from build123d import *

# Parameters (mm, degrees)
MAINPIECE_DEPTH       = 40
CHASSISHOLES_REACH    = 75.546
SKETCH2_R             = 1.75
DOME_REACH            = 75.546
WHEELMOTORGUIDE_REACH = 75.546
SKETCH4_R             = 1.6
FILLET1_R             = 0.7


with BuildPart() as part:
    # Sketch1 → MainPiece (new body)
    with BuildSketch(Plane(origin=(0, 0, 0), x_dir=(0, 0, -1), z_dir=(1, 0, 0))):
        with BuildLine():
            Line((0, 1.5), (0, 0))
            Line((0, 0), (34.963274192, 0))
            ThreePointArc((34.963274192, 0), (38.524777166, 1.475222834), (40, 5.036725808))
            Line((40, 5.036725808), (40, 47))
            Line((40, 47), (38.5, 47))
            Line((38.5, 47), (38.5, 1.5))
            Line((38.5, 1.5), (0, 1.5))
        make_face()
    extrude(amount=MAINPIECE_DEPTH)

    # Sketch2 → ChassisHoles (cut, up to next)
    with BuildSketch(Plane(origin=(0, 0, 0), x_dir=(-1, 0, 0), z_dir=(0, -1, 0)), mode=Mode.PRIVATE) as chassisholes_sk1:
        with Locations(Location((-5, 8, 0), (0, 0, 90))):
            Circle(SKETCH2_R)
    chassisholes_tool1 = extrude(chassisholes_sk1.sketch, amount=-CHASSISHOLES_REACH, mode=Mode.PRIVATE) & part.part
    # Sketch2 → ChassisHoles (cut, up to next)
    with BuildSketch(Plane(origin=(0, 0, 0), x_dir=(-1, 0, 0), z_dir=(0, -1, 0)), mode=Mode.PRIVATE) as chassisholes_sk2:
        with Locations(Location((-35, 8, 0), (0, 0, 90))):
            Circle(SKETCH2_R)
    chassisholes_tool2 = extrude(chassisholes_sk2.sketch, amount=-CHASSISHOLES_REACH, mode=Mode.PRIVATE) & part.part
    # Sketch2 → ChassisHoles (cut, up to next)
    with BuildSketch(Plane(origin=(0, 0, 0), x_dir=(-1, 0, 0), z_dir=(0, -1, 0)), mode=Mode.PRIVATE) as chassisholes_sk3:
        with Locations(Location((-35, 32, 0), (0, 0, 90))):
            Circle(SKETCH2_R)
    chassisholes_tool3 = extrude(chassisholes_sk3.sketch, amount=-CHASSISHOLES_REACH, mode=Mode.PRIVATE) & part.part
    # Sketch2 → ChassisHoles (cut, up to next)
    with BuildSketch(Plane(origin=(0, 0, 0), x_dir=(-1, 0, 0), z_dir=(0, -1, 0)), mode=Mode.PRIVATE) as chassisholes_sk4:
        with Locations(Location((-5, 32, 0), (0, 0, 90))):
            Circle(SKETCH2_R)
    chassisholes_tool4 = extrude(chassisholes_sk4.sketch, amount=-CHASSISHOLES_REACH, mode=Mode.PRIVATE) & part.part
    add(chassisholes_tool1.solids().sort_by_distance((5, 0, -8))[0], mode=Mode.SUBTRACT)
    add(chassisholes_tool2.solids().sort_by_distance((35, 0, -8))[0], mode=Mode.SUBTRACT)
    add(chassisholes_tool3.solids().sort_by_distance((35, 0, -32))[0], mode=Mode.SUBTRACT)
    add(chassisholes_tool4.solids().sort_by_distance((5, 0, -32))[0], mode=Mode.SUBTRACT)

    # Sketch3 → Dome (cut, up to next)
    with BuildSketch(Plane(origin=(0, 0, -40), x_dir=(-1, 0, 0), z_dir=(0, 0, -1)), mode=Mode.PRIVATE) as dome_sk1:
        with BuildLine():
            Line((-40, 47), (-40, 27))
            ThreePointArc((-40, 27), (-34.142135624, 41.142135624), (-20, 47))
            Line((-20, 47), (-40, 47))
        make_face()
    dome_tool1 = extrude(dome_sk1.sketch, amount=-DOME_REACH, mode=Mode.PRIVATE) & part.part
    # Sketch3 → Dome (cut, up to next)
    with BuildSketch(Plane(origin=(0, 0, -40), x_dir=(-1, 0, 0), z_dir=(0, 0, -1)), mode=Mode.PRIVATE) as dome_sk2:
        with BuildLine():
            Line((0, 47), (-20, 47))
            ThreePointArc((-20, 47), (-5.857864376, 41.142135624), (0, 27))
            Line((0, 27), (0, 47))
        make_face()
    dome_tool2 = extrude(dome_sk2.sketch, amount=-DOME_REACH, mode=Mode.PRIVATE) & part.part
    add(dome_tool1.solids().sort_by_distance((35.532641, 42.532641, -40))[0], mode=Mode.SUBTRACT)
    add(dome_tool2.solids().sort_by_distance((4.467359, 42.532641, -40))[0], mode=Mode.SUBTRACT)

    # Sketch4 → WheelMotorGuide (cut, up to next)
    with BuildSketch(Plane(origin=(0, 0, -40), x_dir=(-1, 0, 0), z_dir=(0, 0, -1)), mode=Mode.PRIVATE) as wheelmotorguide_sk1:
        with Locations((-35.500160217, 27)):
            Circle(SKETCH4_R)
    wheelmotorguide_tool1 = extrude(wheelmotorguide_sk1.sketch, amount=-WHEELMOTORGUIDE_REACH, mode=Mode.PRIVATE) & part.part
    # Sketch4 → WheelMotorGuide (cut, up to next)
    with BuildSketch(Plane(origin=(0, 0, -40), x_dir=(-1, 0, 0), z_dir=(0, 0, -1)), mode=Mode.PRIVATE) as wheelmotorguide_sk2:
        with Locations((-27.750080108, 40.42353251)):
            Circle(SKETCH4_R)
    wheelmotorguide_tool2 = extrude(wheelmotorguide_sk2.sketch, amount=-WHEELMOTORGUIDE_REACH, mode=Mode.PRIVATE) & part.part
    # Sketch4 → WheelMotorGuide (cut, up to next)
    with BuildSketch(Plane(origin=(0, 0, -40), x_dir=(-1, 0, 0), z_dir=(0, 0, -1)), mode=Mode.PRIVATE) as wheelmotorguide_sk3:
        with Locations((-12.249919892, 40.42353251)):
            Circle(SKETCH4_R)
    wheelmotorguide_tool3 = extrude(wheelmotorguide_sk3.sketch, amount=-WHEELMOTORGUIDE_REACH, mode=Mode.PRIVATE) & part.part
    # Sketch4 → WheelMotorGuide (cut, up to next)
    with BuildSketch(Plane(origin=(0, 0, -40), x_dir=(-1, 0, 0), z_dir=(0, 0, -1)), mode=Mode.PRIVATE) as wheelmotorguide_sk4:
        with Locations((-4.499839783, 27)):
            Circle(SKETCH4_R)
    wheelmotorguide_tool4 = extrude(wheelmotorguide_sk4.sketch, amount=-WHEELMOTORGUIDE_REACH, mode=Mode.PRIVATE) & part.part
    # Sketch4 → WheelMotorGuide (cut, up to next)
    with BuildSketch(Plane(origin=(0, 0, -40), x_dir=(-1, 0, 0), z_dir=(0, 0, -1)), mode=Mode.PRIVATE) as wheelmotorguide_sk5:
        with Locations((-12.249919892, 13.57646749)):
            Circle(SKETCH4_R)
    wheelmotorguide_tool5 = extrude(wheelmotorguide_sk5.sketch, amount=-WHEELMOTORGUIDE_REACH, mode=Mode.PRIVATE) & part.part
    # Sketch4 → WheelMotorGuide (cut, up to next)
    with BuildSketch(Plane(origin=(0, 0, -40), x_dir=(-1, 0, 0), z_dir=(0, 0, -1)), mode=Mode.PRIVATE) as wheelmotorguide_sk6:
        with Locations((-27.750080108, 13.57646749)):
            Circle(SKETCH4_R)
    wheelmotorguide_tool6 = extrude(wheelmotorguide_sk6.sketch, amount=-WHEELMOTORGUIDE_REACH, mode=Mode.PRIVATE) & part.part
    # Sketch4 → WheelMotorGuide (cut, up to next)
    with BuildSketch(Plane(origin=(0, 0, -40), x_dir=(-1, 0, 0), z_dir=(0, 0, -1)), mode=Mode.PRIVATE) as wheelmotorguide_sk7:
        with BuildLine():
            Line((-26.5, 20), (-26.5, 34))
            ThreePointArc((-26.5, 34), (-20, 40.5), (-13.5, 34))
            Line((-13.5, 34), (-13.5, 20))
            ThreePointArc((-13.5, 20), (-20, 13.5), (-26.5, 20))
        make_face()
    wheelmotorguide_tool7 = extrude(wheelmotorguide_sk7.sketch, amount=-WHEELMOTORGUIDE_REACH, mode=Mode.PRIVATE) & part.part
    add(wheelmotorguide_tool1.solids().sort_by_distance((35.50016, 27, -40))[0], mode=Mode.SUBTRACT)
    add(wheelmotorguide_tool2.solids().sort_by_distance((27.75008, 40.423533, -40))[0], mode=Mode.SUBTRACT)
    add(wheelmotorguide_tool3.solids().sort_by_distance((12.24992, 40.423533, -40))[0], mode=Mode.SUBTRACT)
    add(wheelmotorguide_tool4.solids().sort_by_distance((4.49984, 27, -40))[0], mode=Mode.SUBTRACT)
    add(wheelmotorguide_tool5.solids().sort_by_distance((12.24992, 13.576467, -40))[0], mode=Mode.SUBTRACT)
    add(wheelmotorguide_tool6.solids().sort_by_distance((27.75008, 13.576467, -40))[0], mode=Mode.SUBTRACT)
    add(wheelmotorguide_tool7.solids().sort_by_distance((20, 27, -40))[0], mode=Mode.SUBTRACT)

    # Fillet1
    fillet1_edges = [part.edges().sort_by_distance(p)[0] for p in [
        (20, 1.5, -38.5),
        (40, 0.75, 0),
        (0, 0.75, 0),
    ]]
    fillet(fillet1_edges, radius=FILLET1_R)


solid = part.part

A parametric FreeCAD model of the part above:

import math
import FreeCAD as App
import Part
import Sketcher
from FreeCAD import Vector


def edges_at(feature, points):
    """Names of the edges that pass closest to the given points."""
    edges = feature.Shape.Edges
    near = lambda p: min(range(len(edges)), key=lambda i: edges[i].distToShape(Part.Vertex(*p))[0])
    return sorted({f"Edge{near(p) + 1}" for p in points})

doc = App.newDocument("Part")
params = doc.addObject("Spreadsheet::Sheet", "Params")
for row, (alias, value) in enumerate([
    ("sketch1_width", "1.5 mm"),
    ("sketch1_width2", "45.5 mm"),
    ("sketch1_height", "38.5 mm"),
    ("pad1_length", "40 mm"),
    ("sketch2_diameter", "3.5 mm"),
    ("sketch3_diameter", "3.5 mm"),
    ("sketch4_diameter", "3.5 mm"),
    ("sketch5_diameter", "3.5 mm"),
    ("sketch6_radius", "20 mm"),
    ("sketch7_radius", "20 mm"),
    ("sketch8_diameter", "3.2 mm"),
    ("sketch9_diameter", "3.2 mm"),
    ("sketch10_diameter", "3.2 mm"),
    ("sketch11_diameter", "3.2 mm"),
    ("sketch12_diameter", "3.2 mm"),
    ("sketch13_diameter", "3.2 mm"),
    ("sketch14_radius", "6.5 mm"),
    ("sketch14_height", "14 mm"),
    ("fillet_radius", "0.7 mm"),
], start=1):
    params.set(f"A{row}", alias)
    params.set(f"B{row}", "=" + value)
    params.setAlias(f"B{row}", alias)

body = doc.addObject("PartDesign::Body", "Body")

# Sketch on YZ plane
sketch1 = body.newObject("Sketcher::SketchObject", "Sketch")
sketch1.AttachmentSupport = (doc.getObject("YZ_Plane"), [""])
sketch1.MapMode = "FlatFace"
sketch1.addGeometry([
    Part.LineSegment(Vector(1.5, 0, 0), Vector(0, 0, 0)),  # 0
    Part.LineSegment(Vector(0, 0, 0), Vector(0, -34.963274, 0)),  # 1
    Part.ArcOfCircle(Part.Circle(Vector(5.036726, -34.963274, 0), Vector(0, 0, 1), 5.036726), math.radians(180), math.radians(270)),  # 2
    Part.LineSegment(Vector(5.036726, -40, 0), Vector(47, -40, 0)),  # 3
    Part.LineSegment(Vector(47, -40, 0), Vector(47, -38.5, 0)),  # 4
    Part.LineSegment(Vector(47, -38.5, 0), Vector(1.5, -38.5, 0)),  # 5
    Part.LineSegment(Vector(1.5, -38.5, 0), Vector(1.5, 0, 0)),  # 6
], False)
sketch1.addConstraint([
    Sketcher.Constraint("Coincident", 0, 2, 1, 1),
    Sketcher.Constraint("Tangent", 1, 2, 2, 1),
    Sketcher.Constraint("Tangent", 2, 2, 3, 1),
    Sketcher.Constraint("Coincident", 3, 2, 4, 1),
    Sketcher.Constraint("Coincident", 4, 2, 5, 1),
    Sketcher.Constraint("Coincident", 5, 2, 6, 1),
    Sketcher.Constraint("Coincident", 6, 2, 0, 1),
    Sketcher.Constraint("Horizontal", 0),
    Sketcher.Constraint("Vertical", 1),
    Sketcher.Constraint("Horizontal", 3),
    Sketcher.Constraint("Vertical", 4),
    Sketcher.Constraint("Horizontal", 5),
    Sketcher.Constraint("Vertical", 6),
    Sketcher.Constraint("Coincident", 0, 2, -1, 1),
    Sketcher.Constraint("Equal", 0, 4),
    Sketcher.Constraint("DistanceX", 0, 2, 0, 1, 1.5),
    Sketcher.Constraint("DistanceX", 5, 2, 5, 1, 45.5),
    Sketcher.Constraint("DistanceY", 6, 1, 6, 2, 38.5),
    Sketcher.Constraint("Radius", 2, 5.036726),
])
sketch1.setExpression("Constraints[15]", "Params.sketch1_width")
sketch1.setExpression("Constraints[16]", "Params.sketch1_width2")
sketch1.setExpression("Constraints[17]", "Params.sketch1_height")
pad1 = body.newObject("PartDesign::Pad", "Pad")
pad1.Profile = sketch1
pad1.setExpression("Length", "Params.pad1_length")

# Sketch on XZ plane
sketch2 = body.newObject("Sketcher::SketchObject", "Sketch001")
sketch2.AttachmentSupport = (doc.getObject("XZ_Plane"), [""])
sketch2.MapMode = "FlatFace"
sketch2.addGeometry(Part.Circle(Vector(5, -8, 0), Vector(0, 0, 1), 1.75), False)
sketch2.addConstraint([
    Sketcher.Constraint("Diameter", 0, 3.5),
    Sketcher.Constraint("DistanceX", -1, 1, 0, 3, 5.0),
    Sketcher.Constraint("DistanceY", 0, 3, -1, 1, 8.0),
])
sketch2.setExpression("Constraints[0]", "Params.sketch2_diameter")
pocket1 = body.newObject("PartDesign::Pocket", "Pocket")
pocket1.Profile = sketch2
pocket1.Type = "UpToFirst"

# Sketch on XZ plane
sketch3 = body.newObject("Sketcher::SketchObject", "Sketch002")
sketch3.AttachmentSupport = (doc.getObject("XZ_Plane"), [""])
sketch3.MapMode = "FlatFace"
sketch3.addGeometry(Part.Circle(Vector(35, -8, 0), Vector(0, 0, 1), 1.75), False)
sketch3.addConstraint([
    Sketcher.Constraint("Diameter", 0, 3.5),
    Sketcher.Constraint("DistanceX", -1, 1, 0, 3, 35.0),
    Sketcher.Constraint("DistanceY", 0, 3, -1, 1, 8.0),
])
sketch3.setExpression("Constraints[0]", "Params.sketch3_diameter")
pocket2 = body.newObject("PartDesign::Pocket", "Pocket001")
pocket2.Profile = sketch3
pocket2.Type = "UpToFirst"

# Sketch on XZ plane
sketch4 = body.newObject("Sketcher::SketchObject", "Sketch003")
sketch4.AttachmentSupport = (doc.getObject("XZ_Plane"), [""])
sketch4.MapMode = "FlatFace"
sketch4.addGeometry(Part.Circle(Vector(35, -32, 0), Vector(0, 0, 1), 1.75), False)
sketch4.addConstraint([
    Sketcher.Constraint("Diameter", 0, 3.5),
    Sketcher.Constraint("DistanceX", -1, 1, 0, 3, 35.0),
    Sketcher.Constraint("DistanceY", 0, 3, -1, 1, 32.0),
])
sketch4.setExpression("Constraints[0]", "Params.sketch4_diameter")
pocket3 = body.newObject("PartDesign::Pocket", "Pocket002")
pocket3.Profile = sketch4
pocket3.Type = "UpToFirst"

# Sketch on XZ plane
sketch5 = body.newObject("Sketcher::SketchObject", "Sketch004")
sketch5.AttachmentSupport = (doc.getObject("XZ_Plane"), [""])
sketch5.MapMode = "FlatFace"
sketch5.addGeometry(Part.Circle(Vector(5, -32, 0), Vector(0, 0, 1), 1.75), False)
sketch5.addConstraint([
    Sketcher.Constraint("Diameter", 0, 3.5),
    Sketcher.Constraint("DistanceX", -1, 1, 0, 3, 5.0),
    Sketcher.Constraint("DistanceY", 0, 3, -1, 1, 32.0),
])
sketch5.setExpression("Constraints[0]", "Params.sketch5_diameter")
pocket4 = body.newObject("PartDesign::Pocket", "Pocket003")
pocket4.Profile = sketch5
pocket4.Type = "UpToFirst"

# Sketch on XY plane
sketch6 = body.newObject("Sketcher::SketchObject", "Sketch005")
sketch6.AttachmentSupport = (doc.getObject("XY_Plane"), [""])
sketch6.MapMode = "FlatFace"
sketch6.AttachmentOffset = App.Placement(Vector(0, 0, -40), App.Rotation())
sketch6.addGeometry([
    Part.LineSegment(Vector(40, 47, 0), Vector(40, 27, 0)),
    Part.ArcOfCircle(Part.Circle(Vector(20, 27, 0), Vector(0, 0, 1), 20), math.radians(0), math.radians(90)),
    Part.LineSegment(Vector(20, 47, 0), Vector(40, 47, 0)),
], False)
sketch6.addConstraint([
    Sketcher.Constraint("Tangent", 0, 2, 1, 1),
    Sketcher.Constraint("Tangent", 1, 2, 2, 1),
    Sketcher.Constraint("Coincident", 2, 2, 0, 1),
    Sketcher.Constraint("Vertical", 0),
    Sketcher.Constraint("Horizontal", 2),
    Sketcher.Constraint("Radius", 1, 20.0),
    Sketcher.Constraint("DistanceX", -1, 1, 1, 3, 20.0),
    Sketcher.Constraint("DistanceY", -1, 1, 1, 3, 27.0),
])
sketch6.setExpression("Constraints[5]", "Params.sketch6_radius")
pocket5 = body.newObject("PartDesign::Pocket", "Pocket004")
pocket5.Profile = sketch6
pocket5.Type = "UpToFirst"
pocket5.Reversed = True

# Sketch on XY plane
sketch7 = body.newObject("Sketcher::SketchObject", "Sketch006")
sketch7.AttachmentSupport = (doc.getObject("XY_Plane"), [""])
sketch7.MapMode = "FlatFace"
sketch7.AttachmentOffset = App.Placement(Vector(0, 0, -40), App.Rotation())
sketch7.addGeometry([
    Part.LineSegment(Vector(0, 47, 0), Vector(20, 47, 0)),
    Part.ArcOfCircle(Part.Circle(Vector(20, 27, 0), Vector(0, 0, 1), 20), math.radians(90), math.radians(180)),
    Part.LineSegment(Vector(0, 27, 0), Vector(0, 47, 0)),
], False)
sketch7.addConstraint([
    Sketcher.Constraint("Tangent", 0, 2, 1, 1),
    Sketcher.Constraint("Tangent", 1, 2, 2, 1),
    Sketcher.Constraint("Coincident", 2, 2, 0, 1),
    Sketcher.Constraint("Horizontal", 0),
    Sketcher.Constraint("Vertical", 2),
    Sketcher.Constraint("PointOnObject", 1, 2, -2),
    Sketcher.Constraint("Radius", 1, 20.0),
    Sketcher.Constraint("DistanceY", -1, 1, 1, 3, 27.0),
])
sketch7.setExpression("Constraints[6]", "Params.sketch7_radius")
pocket6 = body.newObject("PartDesign::Pocket", "Pocket005")
pocket6.Profile = sketch7
pocket6.Type = "UpToFirst"
pocket6.Reversed = True

# Sketch on XY plane
sketch8 = body.newObject("Sketcher::SketchObject", "Sketch007")
sketch8.AttachmentSupport = (doc.getObject("XY_Plane"), [""])
sketch8.MapMode = "FlatFace"
sketch8.AttachmentOffset = App.Placement(Vector(0, 0, -40), App.Rotation())
sketch8.addGeometry(Part.Circle(Vector(35.50016, 27, 0), Vector(0, 0, 1), 1.6), False)
sketch8.addConstraint([
    Sketcher.Constraint("Diameter", 0, 3.2),
    Sketcher.Constraint("DistanceY", -1, 1, 0, 3, 27.0),
    Sketcher.Constraint("DistanceX", -1, 1, 0, 3, 35.50016),
])
sketch8.setExpression("Constraints[0]", "Params.sketch8_diameter")
pocket7 = body.newObject("PartDesign::Pocket", "Pocket006")
pocket7.Profile = sketch8
pocket7.Type = "UpToFirst"
pocket7.Reversed = True

# Sketch on XY plane
sketch9 = body.newObject("Sketcher::SketchObject", "Sketch008")
sketch9.AttachmentSupport = (doc.getObject("XY_Plane"), [""])
sketch9.MapMode = "FlatFace"
sketch9.AttachmentOffset = App.Placement(Vector(0, 0, -40), App.Rotation())
sketch9.addGeometry(Part.Circle(Vector(27.75008, 40.423533, 0), Vector(0, 0, 1), 1.6), False)
sketch9.addConstraint([
    Sketcher.Constraint("Diameter", 0, 3.2),
    Sketcher.Constraint("DistanceX", -1, 1, 0, 3, 27.75008),
    Sketcher.Constraint("DistanceY", -1, 1, 0, 3, 40.423533),
])
sketch9.setExpression("Constraints[0]", "Params.sketch9_diameter")
pocket8 = body.newObject("PartDesign::Pocket", "Pocket007")
pocket8.Profile = sketch9
pocket8.Type = "UpToFirst"
pocket8.Reversed = True

# Sketch on XY plane
sketch10 = body.newObject("Sketcher::SketchObject", "Sketch009")
sketch10.AttachmentSupport = (doc.getObject("XY_Plane"), [""])
sketch10.MapMode = "FlatFace"
sketch10.AttachmentOffset = App.Placement(Vector(0, 0, -40), App.Rotation())
sketch10.addGeometry(Part.Circle(Vector(12.24992, 40.423533, 0), Vector(0, 0, 1), 1.6), False)
sketch10.addConstraint([
    Sketcher.Constraint("Diameter", 0, 3.2),
    Sketcher.Constraint("DistanceX", -1, 1, 0, 3, 12.24992),
    Sketcher.Constraint("DistanceY", -1, 1, 0, 3, 40.423533),
])
sketch10.setExpression("Constraints[0]", "Params.sketch10_diameter")
pocket9 = body.newObject("PartDesign::Pocket", "Pocket008")
pocket9.Profile = sketch10
pocket9.Type = "UpToFirst"
pocket9.Reversed = True

# Sketch on XY plane
sketch11 = body.newObject("Sketcher::SketchObject", "Sketch010")
sketch11.AttachmentSupport = (doc.getObject("XY_Plane"), [""])
sketch11.MapMode = "FlatFace"
sketch11.AttachmentOffset = App.Placement(Vector(0, 0, -40), App.Rotation())
sketch11.addGeometry(Part.Circle(Vector(4.49984, 27, 0), Vector(0, 0, 1), 1.6), False)
sketch11.addConstraint([
    Sketcher.Constraint("Diameter", 0, 3.2),
    Sketcher.Constraint("DistanceY", -1, 1, 0, 3, 27.0),
    Sketcher.Constraint("DistanceX", -1, 1, 0, 3, 4.49984),
])
sketch11.setExpression("Constraints[0]", "Params.sketch11_diameter")
pocket10 = body.newObject("PartDesign::Pocket", "Pocket009")
pocket10.Profile = sketch11
pocket10.Type = "UpToFirst"
pocket10.Reversed = True

# Sketch on XY plane
sketch12 = body.newObject("Sketcher::SketchObject", "Sketch011")
sketch12.AttachmentSupport = (doc.getObject("XY_Plane"), [""])
sketch12.MapMode = "FlatFace"
sketch12.AttachmentOffset = App.Placement(Vector(0, 0, -40), App.Rotation())
sketch12.addGeometry(Part.Circle(Vector(12.24992, 13.576467, 0), Vector(0, 0, 1), 1.6), False)
sketch12.addConstraint([
    Sketcher.Constraint("Diameter", 0, 3.2),
    Sketcher.Constraint("DistanceX", -1, 1, 0, 3, 12.24992),
    Sketcher.Constraint("DistanceY", -1, 1, 0, 3, 13.576467),
])
sketch12.setExpression("Constraints[0]", "Params.sketch12_diameter")
pocket11 = body.newObject("PartDesign::Pocket", "Pocket010")
pocket11.Profile = sketch12
pocket11.Type = "UpToFirst"
pocket11.Reversed = True

# Sketch on XY plane
sketch13 = body.newObject("Sketcher::SketchObject", "Sketch012")
sketch13.AttachmentSupport = (doc.getObject("XY_Plane"), [""])
sketch13.MapMode = "FlatFace"
sketch13.AttachmentOffset = App.Placement(Vector(0, 0, -40), App.Rotation())
sketch13.addGeometry(Part.Circle(Vector(27.75008, 13.576467, 0), Vector(0, 0, 1), 1.6), False)
sketch13.addConstraint([
    Sketcher.Constraint("Diameter", 0, 3.2),
    Sketcher.Constraint("DistanceX", -1, 1, 0, 3, 27.75008),
    Sketcher.Constraint("DistanceY", -1, 1, 0, 3, 13.576467),
])
sketch13.setExpression("Constraints[0]", "Params.sketch13_diameter")
pocket12 = body.newObject("PartDesign::Pocket", "Pocket011")
pocket12.Profile = sketch13
pocket12.Type = "UpToFirst"
pocket12.Reversed = True

# Sketch on XY plane
sketch14 = body.newObject("Sketcher::SketchObject", "Sketch013")
sketch14.AttachmentSupport = (doc.getObject("XY_Plane"), [""])
sketch14.MapMode = "FlatFace"
sketch14.AttachmentOffset = App.Placement(Vector(0, 0, -40), App.Rotation())
sketch14.addGeometry([
    Part.LineSegment(Vector(26.5, 34, 0), Vector(26.5, 20, 0)),
    Part.ArcOfCircle(Part.Circle(Vector(20, 20, 0), Vector(0, 0, 1), 6.5), math.radians(180), math.radians(360)),
    Part.LineSegment(Vector(13.5, 20, 0), Vector(13.5, 34, 0)),
    Part.ArcOfCircle(Part.Circle(Vector(20, 34, 0), Vector(0, 0, 1), 6.5), math.radians(0), math.radians(180)),
], False)
sketch14.addConstraint([
    Sketcher.Constraint("Tangent", 0, 2, 1, 2),
    Sketcher.Constraint("Tangent", 1, 1, 2, 1),
    Sketcher.Constraint("Tangent", 2, 2, 3, 2),
    Sketcher.Constraint("Tangent", 3, 1, 0, 1),
    Sketcher.Constraint("Vertical", 0),
    Sketcher.Constraint("Vertical", 2),
    Sketcher.Constraint("Radius", 1, 6.5),
    Sketcher.Constraint("DistanceY", 0, 2, 0, 1, 14.0),
    Sketcher.Constraint("DistanceX", -1, 1, 1, 3, 20.0),
    Sketcher.Constraint("DistanceY", -1, 1, 1, 3, 20.0),
])
sketch14.setExpression("Constraints[6]", "Params.sketch14_radius")
sketch14.setExpression("Constraints[7]", "Params.sketch14_height")
pocket13 = body.newObject("PartDesign::Pocket", "Pocket012")
pocket13.Profile = sketch14
pocket13.Type = "UpToFirst"
pocket13.Reversed = True
doc.recompute()

fillet = body.newObject("PartDesign::Fillet", "Fillet")
fillet.Base = (pocket13, edges_at(pocket13, [(20, 1.5, -38.5), (40, 0.75, 0), (0, 0.75, 0)]))
fillet.setExpression("Radius", "Params.fillet_radius")

doc.recompute()
